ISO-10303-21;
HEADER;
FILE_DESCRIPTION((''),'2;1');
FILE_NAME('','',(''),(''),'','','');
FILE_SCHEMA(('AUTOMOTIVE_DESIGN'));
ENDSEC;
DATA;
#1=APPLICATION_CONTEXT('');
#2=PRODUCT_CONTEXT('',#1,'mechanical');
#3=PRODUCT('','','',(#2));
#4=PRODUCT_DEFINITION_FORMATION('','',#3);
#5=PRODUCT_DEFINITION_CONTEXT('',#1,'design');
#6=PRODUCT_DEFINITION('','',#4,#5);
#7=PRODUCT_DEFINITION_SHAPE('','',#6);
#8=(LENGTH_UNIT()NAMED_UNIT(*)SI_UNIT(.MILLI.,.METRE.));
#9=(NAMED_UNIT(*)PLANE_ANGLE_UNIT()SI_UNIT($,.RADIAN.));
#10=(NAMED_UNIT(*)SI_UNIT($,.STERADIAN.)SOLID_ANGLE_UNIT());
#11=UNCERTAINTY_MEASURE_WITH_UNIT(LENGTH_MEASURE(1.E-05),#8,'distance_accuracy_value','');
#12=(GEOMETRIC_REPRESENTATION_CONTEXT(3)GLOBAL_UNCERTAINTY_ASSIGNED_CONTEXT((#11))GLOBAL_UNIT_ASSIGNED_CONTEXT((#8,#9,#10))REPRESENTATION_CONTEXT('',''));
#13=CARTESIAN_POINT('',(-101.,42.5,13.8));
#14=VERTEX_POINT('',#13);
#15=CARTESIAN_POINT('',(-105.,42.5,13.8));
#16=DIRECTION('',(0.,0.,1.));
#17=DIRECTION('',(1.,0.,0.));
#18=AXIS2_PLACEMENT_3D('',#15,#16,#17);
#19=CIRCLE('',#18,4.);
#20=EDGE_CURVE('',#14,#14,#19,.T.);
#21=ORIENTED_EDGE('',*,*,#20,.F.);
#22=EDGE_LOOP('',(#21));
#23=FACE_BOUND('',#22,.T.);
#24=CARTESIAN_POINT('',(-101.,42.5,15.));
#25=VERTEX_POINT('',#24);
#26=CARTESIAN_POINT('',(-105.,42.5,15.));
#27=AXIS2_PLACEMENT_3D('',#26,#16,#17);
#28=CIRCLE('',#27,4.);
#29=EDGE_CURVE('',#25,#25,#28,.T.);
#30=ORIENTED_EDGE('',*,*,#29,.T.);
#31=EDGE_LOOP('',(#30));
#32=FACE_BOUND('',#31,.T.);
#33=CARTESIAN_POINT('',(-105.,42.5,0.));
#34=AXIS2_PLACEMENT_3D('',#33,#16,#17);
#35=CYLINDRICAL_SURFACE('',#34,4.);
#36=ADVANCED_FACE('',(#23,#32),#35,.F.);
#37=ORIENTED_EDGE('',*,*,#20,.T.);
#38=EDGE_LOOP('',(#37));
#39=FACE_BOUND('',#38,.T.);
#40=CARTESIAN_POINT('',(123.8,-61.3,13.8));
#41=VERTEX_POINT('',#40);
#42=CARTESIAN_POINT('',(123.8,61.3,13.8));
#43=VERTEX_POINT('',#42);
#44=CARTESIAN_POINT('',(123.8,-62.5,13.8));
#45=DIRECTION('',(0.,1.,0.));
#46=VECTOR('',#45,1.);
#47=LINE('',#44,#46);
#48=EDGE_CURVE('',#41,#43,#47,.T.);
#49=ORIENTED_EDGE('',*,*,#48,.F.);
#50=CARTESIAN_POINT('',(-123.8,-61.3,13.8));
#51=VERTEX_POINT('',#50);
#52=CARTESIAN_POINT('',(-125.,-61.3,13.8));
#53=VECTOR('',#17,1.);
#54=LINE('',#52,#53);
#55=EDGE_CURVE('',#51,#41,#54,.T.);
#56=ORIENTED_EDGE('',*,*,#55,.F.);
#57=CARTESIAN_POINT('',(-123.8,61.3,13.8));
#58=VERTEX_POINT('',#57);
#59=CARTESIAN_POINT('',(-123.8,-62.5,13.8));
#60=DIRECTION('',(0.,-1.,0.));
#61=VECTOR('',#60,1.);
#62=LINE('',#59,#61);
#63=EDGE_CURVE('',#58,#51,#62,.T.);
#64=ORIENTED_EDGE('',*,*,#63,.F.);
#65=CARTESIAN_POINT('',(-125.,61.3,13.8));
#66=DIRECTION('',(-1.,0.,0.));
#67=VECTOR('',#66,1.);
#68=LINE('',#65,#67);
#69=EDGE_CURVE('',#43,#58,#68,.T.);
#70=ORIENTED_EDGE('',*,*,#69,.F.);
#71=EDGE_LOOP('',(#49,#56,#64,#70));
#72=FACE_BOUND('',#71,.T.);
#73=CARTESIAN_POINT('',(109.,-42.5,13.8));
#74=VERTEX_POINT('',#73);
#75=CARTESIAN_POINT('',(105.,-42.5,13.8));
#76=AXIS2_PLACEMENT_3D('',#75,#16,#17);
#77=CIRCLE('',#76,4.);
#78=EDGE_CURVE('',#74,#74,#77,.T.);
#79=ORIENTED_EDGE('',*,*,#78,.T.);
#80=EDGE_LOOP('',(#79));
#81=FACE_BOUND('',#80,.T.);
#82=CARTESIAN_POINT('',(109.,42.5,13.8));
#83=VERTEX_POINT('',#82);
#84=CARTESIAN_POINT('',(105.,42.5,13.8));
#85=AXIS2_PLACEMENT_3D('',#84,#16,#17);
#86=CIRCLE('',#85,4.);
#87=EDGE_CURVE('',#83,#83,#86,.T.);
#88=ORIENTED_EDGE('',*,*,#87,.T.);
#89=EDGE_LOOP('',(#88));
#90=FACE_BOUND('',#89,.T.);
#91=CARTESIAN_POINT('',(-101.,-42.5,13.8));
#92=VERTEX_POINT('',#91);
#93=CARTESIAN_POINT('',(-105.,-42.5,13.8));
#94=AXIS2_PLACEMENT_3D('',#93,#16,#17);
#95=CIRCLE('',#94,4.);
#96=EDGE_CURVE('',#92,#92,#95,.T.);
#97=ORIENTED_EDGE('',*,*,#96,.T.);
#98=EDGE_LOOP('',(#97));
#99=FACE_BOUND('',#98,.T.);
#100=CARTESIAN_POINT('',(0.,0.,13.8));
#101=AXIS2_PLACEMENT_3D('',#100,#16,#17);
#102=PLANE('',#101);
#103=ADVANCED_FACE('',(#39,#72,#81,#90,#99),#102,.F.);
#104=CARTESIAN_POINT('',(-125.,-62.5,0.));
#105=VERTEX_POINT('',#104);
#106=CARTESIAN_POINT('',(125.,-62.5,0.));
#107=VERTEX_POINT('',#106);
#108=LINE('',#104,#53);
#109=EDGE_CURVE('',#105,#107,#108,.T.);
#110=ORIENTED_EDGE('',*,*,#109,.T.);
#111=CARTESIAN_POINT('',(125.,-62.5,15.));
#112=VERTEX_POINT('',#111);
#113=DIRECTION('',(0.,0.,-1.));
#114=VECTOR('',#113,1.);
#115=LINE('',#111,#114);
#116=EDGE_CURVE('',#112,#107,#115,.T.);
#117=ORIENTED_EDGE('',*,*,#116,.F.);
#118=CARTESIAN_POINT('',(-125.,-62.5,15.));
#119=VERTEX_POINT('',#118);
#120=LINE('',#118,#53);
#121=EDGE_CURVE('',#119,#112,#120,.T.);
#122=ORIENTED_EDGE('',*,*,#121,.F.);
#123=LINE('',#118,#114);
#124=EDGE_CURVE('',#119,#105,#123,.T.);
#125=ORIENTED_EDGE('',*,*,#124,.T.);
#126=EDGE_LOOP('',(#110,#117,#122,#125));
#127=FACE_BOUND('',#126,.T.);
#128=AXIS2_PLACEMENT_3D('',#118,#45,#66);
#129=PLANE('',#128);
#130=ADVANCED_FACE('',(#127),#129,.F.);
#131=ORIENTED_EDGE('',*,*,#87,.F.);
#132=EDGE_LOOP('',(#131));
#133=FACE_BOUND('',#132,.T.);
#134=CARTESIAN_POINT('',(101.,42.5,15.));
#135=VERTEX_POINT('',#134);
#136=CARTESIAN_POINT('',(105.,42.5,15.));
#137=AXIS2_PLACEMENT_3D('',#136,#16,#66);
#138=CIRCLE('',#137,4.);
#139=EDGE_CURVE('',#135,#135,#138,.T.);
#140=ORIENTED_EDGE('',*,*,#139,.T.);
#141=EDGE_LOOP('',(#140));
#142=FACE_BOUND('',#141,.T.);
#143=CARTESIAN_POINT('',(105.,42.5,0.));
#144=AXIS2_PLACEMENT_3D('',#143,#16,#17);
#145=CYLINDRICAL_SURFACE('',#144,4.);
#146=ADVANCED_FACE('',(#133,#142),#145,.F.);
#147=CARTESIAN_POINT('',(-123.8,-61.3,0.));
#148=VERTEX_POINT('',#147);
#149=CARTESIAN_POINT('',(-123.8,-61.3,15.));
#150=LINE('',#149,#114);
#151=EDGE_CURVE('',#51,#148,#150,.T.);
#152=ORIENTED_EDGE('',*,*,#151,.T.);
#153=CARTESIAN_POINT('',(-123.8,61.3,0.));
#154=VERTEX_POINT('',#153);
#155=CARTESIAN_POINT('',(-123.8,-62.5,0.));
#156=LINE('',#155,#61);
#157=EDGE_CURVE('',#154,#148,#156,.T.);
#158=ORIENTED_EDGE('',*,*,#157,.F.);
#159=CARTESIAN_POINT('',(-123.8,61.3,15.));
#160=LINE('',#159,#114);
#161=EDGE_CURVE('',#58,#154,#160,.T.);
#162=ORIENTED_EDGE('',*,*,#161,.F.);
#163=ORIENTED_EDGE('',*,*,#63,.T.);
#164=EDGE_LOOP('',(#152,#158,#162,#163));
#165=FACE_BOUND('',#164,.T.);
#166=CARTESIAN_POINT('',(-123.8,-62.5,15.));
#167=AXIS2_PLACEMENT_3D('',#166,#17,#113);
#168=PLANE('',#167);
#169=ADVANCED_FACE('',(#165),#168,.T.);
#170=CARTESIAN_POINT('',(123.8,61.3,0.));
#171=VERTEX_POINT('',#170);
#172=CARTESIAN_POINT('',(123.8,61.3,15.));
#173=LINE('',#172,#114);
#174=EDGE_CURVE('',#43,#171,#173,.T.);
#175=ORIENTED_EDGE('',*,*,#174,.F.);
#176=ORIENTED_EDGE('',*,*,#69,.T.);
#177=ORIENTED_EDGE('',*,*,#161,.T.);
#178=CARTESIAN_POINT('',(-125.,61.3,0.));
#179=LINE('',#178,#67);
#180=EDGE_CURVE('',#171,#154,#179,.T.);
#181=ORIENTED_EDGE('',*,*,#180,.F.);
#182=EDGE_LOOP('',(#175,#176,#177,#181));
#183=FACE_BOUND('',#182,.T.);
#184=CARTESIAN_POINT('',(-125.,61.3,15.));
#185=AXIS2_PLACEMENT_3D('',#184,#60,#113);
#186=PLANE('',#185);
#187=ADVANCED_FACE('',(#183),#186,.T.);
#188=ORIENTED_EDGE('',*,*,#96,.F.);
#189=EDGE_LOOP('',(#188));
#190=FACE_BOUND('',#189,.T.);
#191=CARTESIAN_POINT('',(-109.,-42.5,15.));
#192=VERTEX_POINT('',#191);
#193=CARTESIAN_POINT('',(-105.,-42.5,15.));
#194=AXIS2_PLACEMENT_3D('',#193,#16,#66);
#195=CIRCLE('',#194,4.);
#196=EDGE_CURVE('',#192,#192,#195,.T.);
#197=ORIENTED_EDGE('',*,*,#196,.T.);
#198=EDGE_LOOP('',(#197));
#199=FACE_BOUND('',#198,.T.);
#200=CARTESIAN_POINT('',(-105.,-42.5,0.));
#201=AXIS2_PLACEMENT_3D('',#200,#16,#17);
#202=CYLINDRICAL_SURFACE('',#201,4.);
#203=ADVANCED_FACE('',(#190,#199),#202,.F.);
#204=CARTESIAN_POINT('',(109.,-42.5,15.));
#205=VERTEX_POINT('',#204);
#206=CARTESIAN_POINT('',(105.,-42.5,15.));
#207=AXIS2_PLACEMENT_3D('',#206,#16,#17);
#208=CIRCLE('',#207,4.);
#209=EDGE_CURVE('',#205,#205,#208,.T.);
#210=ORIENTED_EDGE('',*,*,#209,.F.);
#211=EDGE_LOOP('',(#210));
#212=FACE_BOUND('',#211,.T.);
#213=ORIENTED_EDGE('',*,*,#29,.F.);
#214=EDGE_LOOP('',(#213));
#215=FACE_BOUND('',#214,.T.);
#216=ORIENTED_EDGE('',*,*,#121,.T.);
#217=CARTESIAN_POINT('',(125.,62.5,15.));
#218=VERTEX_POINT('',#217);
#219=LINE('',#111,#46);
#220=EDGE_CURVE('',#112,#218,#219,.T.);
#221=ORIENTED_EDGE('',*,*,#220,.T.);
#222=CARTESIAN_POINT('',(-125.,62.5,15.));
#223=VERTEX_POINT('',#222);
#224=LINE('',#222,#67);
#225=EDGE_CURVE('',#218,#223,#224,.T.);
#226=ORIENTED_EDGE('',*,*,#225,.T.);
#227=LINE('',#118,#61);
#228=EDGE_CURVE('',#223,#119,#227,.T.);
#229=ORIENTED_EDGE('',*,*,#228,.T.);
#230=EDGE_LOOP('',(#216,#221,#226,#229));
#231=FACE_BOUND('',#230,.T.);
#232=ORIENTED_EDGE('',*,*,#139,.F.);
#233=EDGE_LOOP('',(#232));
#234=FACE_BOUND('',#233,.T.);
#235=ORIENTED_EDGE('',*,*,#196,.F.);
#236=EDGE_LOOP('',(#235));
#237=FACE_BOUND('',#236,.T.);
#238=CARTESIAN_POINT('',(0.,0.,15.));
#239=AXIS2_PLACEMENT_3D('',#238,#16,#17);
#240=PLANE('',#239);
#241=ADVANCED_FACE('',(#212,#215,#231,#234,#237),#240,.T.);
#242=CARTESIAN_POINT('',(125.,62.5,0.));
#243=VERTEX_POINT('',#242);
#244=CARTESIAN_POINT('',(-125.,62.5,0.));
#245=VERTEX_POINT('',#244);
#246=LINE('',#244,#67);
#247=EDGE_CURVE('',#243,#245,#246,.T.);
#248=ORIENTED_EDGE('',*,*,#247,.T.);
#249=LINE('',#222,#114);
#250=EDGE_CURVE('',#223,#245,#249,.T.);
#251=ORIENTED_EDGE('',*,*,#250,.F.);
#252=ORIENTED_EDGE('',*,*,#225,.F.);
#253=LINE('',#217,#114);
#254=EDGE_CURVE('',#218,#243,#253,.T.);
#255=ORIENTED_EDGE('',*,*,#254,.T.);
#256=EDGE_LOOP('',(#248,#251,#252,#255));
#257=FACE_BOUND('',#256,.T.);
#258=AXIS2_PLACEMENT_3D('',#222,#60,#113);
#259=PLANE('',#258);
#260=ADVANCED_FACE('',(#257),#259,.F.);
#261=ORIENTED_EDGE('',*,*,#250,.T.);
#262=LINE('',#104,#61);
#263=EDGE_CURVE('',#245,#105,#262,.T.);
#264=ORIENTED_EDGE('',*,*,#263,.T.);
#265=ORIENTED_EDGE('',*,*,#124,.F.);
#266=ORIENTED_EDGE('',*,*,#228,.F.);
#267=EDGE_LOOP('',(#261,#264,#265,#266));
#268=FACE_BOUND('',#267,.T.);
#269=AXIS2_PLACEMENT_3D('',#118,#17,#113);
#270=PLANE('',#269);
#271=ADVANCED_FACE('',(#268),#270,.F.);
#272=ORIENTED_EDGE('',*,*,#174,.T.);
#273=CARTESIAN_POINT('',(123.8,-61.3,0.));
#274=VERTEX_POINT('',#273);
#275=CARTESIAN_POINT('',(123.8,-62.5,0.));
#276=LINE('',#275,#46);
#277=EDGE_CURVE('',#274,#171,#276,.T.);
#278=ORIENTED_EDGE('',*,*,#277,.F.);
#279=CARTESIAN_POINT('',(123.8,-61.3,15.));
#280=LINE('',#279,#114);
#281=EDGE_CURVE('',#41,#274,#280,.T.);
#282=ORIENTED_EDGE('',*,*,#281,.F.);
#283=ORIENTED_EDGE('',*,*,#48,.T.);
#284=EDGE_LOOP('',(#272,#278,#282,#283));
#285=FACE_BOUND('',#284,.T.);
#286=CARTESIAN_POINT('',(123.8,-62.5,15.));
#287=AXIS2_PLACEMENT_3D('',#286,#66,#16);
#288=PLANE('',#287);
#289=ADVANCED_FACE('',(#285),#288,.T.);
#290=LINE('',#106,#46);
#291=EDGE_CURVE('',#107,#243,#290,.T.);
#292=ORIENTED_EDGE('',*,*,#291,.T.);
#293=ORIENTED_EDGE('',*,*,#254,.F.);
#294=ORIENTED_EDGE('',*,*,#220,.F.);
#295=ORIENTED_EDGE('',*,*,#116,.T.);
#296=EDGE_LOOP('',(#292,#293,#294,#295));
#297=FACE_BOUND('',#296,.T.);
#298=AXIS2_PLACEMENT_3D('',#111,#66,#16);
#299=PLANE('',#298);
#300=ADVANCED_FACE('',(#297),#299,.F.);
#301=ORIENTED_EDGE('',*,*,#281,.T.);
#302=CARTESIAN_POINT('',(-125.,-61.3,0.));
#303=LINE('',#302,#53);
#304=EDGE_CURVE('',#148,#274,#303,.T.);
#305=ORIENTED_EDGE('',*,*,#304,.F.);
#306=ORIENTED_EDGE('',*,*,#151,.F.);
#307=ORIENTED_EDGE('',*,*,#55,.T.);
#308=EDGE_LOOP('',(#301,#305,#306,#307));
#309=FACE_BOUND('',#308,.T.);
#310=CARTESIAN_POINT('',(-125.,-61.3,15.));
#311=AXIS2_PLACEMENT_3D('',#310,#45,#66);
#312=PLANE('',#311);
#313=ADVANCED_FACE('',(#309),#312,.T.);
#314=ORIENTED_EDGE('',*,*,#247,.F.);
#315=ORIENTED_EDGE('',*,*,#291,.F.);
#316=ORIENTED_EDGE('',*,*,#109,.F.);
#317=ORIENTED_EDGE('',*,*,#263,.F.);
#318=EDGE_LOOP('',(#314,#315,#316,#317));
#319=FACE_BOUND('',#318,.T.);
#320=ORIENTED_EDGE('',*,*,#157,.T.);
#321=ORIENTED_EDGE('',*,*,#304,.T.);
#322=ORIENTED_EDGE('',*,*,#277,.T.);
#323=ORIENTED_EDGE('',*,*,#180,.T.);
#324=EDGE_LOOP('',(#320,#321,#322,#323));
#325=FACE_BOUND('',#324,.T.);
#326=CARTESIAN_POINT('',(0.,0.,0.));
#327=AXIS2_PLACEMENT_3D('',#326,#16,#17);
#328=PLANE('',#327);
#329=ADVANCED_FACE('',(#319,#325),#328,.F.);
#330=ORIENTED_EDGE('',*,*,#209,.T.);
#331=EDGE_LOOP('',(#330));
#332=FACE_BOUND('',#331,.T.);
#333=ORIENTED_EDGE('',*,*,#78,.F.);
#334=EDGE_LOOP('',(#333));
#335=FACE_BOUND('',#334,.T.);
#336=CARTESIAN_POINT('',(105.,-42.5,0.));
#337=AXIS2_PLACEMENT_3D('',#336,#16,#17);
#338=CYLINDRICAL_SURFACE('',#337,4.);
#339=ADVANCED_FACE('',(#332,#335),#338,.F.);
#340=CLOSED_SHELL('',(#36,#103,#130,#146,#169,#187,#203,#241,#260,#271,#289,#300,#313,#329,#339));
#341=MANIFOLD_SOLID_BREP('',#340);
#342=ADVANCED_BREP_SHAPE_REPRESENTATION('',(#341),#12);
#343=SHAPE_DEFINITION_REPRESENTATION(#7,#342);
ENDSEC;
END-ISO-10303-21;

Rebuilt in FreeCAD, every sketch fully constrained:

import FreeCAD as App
import Part
import Sketcher

V = App.Vector


def faces_at(feature, points):
    """Names of the faces that lie closest to the given points."""
    faces = feature.Shape.Faces
    near = lambda p: min(range(len(faces)), key=lambda i: faces[i].distToShape(Part.Vertex(*p))[0])
    return sorted({f"Face{near(p) + 1}" for p in points})


def add_polygon(sketch, points):
    """Adds a closed chain of lines whose ends are joined by coincident constraints."""
    first, n = sketch.GeometryCount, len(points)
    for a, b in zip(points, points[1:] + points[:1]):
        sketch.addGeometry(Part.LineSegment(App.Vector(*a, 0), App.Vector(*b, 0)), False)
    for i in range(n):
        sketch.addConstraint(Sketcher.Constraint("Coincident", first + i, 2, first + (i + 1) % n, 1))

doc = App.newDocument("Part")
params = doc.addObject("Spreadsheet::Sheet", "Params")
for row, (alias, value) in enumerate([
    ("sketch1_width", "250 mm"),
    ("sketch1_height", "125 mm"),
    ("pad1_length", "15 mm"),
    ("thickness_wall", "1.2 mm"),
    ("sketch2_diameter", "8 mm"),
    ("pocket1_length", "15 mm"),
], start=1):
    params.set(f"A{row}", alias)
    params.set(f"B{row}", "=" + value)
    params.setAlias(f"B{row}", alias)

body = doc.addObject("PartDesign::Body", "Body")

# Sketch on XY plane
sketch1 = body.newObject("Sketcher::SketchObject", "Sketch")
sketch1.AttachmentSupport = (doc.getObject("XY_Plane"), [""])
sketch1.MapMode = "FlatFace"
add_polygon(sketch1, [(-125, 62), (-125, -62), (125, -62), (125, 62)])  # lines 0-3
sketch1.addConstraint([
    Sketcher.Constraint("Vertical", 0),
    Sketcher.Constraint("Horizontal", 1),
    Sketcher.Constraint("Vertical", 2),
    Sketcher.Constraint("Horizontal", 3),
    Sketcher.Constraint("Symmetric", 0, 2, 2, 2, -1, 1),
    Sketcher.Constraint("DistanceX", 1, 1, 1, 2, 250.0),
    Sketcher.Constraint("DistanceY", 0, 2, 0, 1, 125.0),
])
sketch1.setExpression("Constraints[9]", "Params.sketch1_width")
sketch1.setExpression("Constraints[10]", "Params.sketch1_height")
pad1 = body.newObject("PartDesign::Pad", "Pad")
pad1.Profile = sketch1
pad1.setExpression("Length", "Params.pad1_length")
doc.recompute()

thickness = body.newObject("PartDesign::Thickness", "Thickness")
thickness.Base = (pad1, faces_at(pad1, [(0, 0, 0)]))
thickness.setExpression("Value", "Params.thickness_wall")
thickness.Reversed = True
thickness.Join = "Intersection"

# Sketch on XY plane
sketch2 = body.newObject("Sketcher::SketchObject", "Sketch001")
sketch2.AttachmentSupport = (doc.getObject("XY_Plane"), [""])
sketch2.MapMode = "FlatFace"
sketch2.AttachmentOffset = App.Placement(V(0, 0, 15), App.Rotation())
sketch2.addGeometry([
    Part.Circle(V(-105, 42.5, 0), V(0, 0, 1), 4),
    Part.Circle(V(105, 42.5, 0), V(0, 0, 1), 4),
    Part.Circle(V(105, -42.5, 0), V(0, 0, 1), 4),
    Part.Circle(V(-105, -42.5, 0), V(0, 0, 1), 4),
], False)
sketch2.addConstraint([
    Sketcher.Constraint("Equal", 0, 1),
    Sketcher.Constraint("Equal", 1, 2),
    Sketcher.Constraint("Equal", 2, 3),
    Sketcher.Constraint("Symmetric", 0, 3, 2, 3, -1, 1),
    Sketcher.Constraint("Symmetric", 1, 3, 3, 3, -1, 1),
    Sketcher.Constraint("Symmetric", 0, 3, 1, 3, -2),
    Sketcher.Constraint("Diameter", 0, 8.0),
    Sketcher.Constraint("DistanceX", 0, 3, -1, 1, 105.0),
    Sketcher.Constraint("DistanceY", 2, 3, 1, 3, 85.0),
])
sketch2.setExpression("Constraints[6]", "Params.sketch2_diameter")
pocket1 = body.newObject("PartDesign::Pocket", "Pocket")
pocket1.Profile = sketch2
pocket1.setExpression("Length", "Params.pocket1_length")

doc.recompute()
